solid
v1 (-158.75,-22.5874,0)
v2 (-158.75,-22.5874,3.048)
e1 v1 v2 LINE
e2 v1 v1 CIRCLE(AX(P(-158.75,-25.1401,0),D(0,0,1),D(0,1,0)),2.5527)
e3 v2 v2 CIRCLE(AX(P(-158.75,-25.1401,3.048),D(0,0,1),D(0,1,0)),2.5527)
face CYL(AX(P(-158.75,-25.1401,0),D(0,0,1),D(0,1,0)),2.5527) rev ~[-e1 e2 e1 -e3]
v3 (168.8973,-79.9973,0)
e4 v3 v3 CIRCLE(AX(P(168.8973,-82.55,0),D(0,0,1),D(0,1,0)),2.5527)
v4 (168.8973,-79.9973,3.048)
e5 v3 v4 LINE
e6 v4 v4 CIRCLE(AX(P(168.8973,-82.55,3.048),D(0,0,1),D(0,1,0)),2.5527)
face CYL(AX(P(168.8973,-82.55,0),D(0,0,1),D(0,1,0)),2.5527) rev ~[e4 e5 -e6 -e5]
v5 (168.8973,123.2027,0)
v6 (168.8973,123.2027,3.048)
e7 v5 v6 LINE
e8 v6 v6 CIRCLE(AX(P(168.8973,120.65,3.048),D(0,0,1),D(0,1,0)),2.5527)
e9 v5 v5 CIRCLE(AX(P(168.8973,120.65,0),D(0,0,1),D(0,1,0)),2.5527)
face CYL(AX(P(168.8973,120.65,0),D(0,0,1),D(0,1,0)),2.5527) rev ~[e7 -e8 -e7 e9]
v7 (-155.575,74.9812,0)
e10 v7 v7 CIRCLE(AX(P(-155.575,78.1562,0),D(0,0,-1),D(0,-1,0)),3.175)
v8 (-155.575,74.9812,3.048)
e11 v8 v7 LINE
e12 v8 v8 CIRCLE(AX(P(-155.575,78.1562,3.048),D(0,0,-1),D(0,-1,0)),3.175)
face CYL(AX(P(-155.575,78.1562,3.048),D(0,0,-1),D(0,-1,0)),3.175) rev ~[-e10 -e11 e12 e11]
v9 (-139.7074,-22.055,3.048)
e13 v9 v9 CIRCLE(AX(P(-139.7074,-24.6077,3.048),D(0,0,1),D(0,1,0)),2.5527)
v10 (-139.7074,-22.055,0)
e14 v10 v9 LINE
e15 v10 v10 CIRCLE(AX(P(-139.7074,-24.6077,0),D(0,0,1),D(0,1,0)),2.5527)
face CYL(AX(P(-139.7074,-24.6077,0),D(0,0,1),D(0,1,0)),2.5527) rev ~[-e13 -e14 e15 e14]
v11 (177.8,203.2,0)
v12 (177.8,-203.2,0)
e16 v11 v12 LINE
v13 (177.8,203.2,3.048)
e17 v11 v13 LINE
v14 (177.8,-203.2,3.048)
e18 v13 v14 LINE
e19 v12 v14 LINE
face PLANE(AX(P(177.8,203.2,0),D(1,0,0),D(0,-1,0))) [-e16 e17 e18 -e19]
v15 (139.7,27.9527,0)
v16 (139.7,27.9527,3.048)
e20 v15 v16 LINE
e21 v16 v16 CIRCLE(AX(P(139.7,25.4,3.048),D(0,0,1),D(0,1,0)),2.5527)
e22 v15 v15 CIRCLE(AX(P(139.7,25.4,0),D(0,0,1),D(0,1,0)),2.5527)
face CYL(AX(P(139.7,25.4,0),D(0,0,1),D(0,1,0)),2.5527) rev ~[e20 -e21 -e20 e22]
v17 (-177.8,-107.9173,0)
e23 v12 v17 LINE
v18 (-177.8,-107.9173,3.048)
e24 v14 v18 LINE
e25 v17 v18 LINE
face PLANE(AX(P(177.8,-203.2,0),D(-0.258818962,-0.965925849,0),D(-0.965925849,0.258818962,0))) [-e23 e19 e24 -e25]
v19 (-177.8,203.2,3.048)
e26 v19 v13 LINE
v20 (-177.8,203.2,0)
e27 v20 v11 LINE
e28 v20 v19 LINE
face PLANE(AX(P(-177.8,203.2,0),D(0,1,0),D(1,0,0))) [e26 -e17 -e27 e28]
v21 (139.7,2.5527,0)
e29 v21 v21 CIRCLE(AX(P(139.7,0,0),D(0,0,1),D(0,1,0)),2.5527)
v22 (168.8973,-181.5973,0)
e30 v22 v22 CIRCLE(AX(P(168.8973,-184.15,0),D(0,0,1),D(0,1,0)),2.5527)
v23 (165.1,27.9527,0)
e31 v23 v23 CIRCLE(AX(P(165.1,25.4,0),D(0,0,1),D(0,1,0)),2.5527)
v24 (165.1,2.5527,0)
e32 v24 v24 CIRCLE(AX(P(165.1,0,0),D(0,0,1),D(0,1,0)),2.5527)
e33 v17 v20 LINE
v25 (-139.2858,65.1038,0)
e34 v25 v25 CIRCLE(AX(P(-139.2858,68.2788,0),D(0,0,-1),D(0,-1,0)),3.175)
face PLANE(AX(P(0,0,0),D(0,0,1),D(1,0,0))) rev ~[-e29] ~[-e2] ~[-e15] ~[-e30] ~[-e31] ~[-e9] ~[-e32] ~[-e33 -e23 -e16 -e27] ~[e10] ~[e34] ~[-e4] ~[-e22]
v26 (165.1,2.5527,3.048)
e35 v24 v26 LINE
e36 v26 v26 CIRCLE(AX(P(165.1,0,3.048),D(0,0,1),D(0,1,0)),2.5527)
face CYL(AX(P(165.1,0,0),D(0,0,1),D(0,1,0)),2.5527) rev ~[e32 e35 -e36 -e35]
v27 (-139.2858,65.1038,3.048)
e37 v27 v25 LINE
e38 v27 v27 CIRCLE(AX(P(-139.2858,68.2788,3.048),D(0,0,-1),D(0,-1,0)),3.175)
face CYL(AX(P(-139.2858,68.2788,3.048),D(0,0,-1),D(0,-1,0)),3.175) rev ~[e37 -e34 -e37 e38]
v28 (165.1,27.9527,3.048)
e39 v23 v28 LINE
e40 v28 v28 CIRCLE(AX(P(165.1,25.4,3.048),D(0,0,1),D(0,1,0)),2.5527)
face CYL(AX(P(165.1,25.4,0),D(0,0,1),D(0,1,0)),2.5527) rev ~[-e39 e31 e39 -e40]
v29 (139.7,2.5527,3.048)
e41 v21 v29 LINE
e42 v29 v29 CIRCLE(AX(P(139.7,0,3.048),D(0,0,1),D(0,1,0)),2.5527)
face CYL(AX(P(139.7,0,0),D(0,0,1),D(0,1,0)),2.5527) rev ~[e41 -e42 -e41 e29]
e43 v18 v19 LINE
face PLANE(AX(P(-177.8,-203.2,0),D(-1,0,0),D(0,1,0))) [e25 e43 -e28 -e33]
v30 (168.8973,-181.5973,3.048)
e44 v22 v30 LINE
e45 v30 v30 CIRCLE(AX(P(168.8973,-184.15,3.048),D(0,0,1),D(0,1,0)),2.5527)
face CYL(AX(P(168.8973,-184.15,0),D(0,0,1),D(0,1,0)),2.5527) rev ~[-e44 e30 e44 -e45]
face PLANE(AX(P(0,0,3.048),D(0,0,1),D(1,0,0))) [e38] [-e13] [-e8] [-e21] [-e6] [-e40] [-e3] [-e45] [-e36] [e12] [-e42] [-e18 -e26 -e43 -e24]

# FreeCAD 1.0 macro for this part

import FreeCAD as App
import Part
import Sketcher
from FreeCAD import Vector
Q = App.Units.Quantity


def add_polygon(sketch, points):
    """Adds a closed chain of lines whose ends are joined by coincident constraints."""
    first, n = sketch.GeometryCount, len(points)
    for a, b in zip(points, points[1:] + points[:1]):
        sketch.addGeometry(Part.LineSegment(App.Vector(*a, 0), App.Vector(*b, 0)), False)
    for i in range(n):
        sketch.addConstraint(Sketcher.Constraint("Coincident", first + i, 2, first + (i + 1) % n, 1))

doc = App.newDocument("Part")
body = doc.addObject("PartDesign::Body", "Body")

# Sketch on XY plane
sketch1 = body.newObject("Sketcher::SketchObject", "Sketch")
sketch1.AttachmentSupport = (doc.getObject("XY_Plane"), [""])
sketch1.MapMode = "FlatFace"
add_polygon(sketch1, [(177.8, 203.2), (-177.8, 203.2), (-177.8, -203.2), (177.8, -203.2)])  # lines 0-3
sketch1.addConstraint(Sketcher.Constraint("Horizontal", 0))
sketch1.addConstraint(Sketcher.Constraint("Vertical", 1))
sketch1.addConstraint(Sketcher.Constraint("Horizontal", 2))
sketch1.addConstraint(Sketcher.Constraint("Vertical", 3))
sketch1.addConstraint(Sketcher.Constraint("Symmetric", 0, 2, 2, 2, -1, 1))
sketch1.addConstraint(Sketcher.Constraint("DistanceX", 0, 2, 0, 1, Q("14 in")))
sketch1.addConstraint(Sketcher.Constraint("DistanceY", 1, 2, 1, 1, Q("16 in")))
pad1 = body.newObject("PartDesign::Pad", "Pad")
pad1.Profile = sketch1
pad1.Length = Q("0.12 in")

# Sketch on XY plane
sketch2 = body.newObject("Sketcher::SketchObject", "Sketch001")
sketch2.AttachmentSupport = (doc.getObject("XY_Plane"), [""])
sketch2.MapMode = "FlatFace"
add_polygon(sketch2, [(-177.8, -107.9173), (177.8, -203.2), (-177.8, -203.2)])  # lines 0-2
sketch2.addConstraint(Sketcher.Constraint("Horizontal", 1))
sketch2.addConstraint(Sketcher.Constraint("Vertical", 2))
sketch2.addConstraint(Sketcher.Constraint("Angle", 0, Q("-15 deg")))
sketch2.addConstraint(Sketcher.Constraint("DistanceX", 1, 2, 1, 1, Q("14 in")))
sketch2.addConstraint(Sketcher.Constraint("DistanceX", -1, 1, 0, 2, Q("7 in")))
sketch2.addConstraint(Sketcher.Constraint("DistanceY", 0, 2, -1, 1, Q("8 in")))
pocket1 = body.newObject("PartDesign::Pocket", "Pocket")
pocket1.Profile = sketch2
pocket1.Length = Q("0.12 in")
pocket1.Reversed = True

# Sketch on XY plane
sketch3 = body.newObject("Sketcher::SketchObject", "Sketch002")
sketch3.AttachmentSupport = (doc.getObject("XY_Plane"), [""])
sketch3.MapMode = "FlatFace"
sketch3.addGeometry(Part.Circle(Vector(165.1, 0, 0), Vector(0, 0, 1), 2.5527), False)
sketch3.addGeometry(Part.Circle(Vector(139.7, 0, 0), Vector(0, 0, 1), 2.5527), False)
sketch3.addGeometry(Part.Circle(Vector(165.1, 25.4, 0), Vector(0, 0, 1), 2.5527), False)
sketch3.addGeometry(Part.Circle(Vector(139.7, 25.4, 0), Vector(0, 0, 1), 2.5527), False)
sketch3.addConstraint(Sketcher.Constraint("Equal", 0, 1))
sketch3.addConstraint(Sketcher.Constraint("Equal", 1, 2))
sketch3.addConstraint(Sketcher.Constraint("Equal", 2, 3))
sketch3.addConstraint(Sketcher.Constraint("PointOnObject", 0, 3, -1))
sketch3.addConstraint(Sketcher.Constraint("PointOnObject", 1, 3, -1))
sketch3.addConstraint(Sketcher.Constraint("Horizontal", 2, 3, 3, 3))
sketch3.addConstraint(Sketcher.Constraint("Vertical", 0, 3, 2, 3))
sketch3.addConstraint(Sketcher.Constraint("Vertical", 1, 3, 3, 3))
sketch3.addConstraint(Sketcher.Constraint("Diameter", 0, Q("0.201 in")))
sketch3.addConstraint(Sketcher.Constraint("DistanceY", -1, 1, 2, 3, Q("1 in")))
sketch3.addConstraint(Sketcher.Constraint("DistanceX", 1, 3, 0, 3, Q("1 in")))
sketch3.addConstraint(Sketcher.Constraint("DistanceX", -1, 1, 0, 3, Q("6.5 in")))
doc.recompute()
hole = body.newObject("PartDesign::Hole", "Hole")
hole.Profile = sketch3
hole.ThreadType = "None"
hole.Diameter = Q("0.201 in")
hole.DepthType = "ThroughAll"
hole.Reversed = True

# Sketch on XY plane
sketch4 = body.newObject("Sketcher::SketchObject", "Sketch003")
sketch4.AttachmentSupport = (doc.getObject("XY_Plane"), [""])
sketch4.MapMode = "FlatFace"
sketch4.addGeometry(Part.Circle(Vector(168.8973, -184.15, 0), Vector(0, 0, 1), 2.5527), False)
sketch4.addGeometry(Part.Circle(Vector(168.8973, -82.55, 0), Vector(0, 0, 1), 2.5527), False)
sketch4.addGeometry(Part.Circle(Vector(168.8973, 120.65, 0), Vector(0, 0, 1), 2.5527), False)
sketch4.addConstraint(Sketcher.Constraint("Equal", 0, 1))
sketch4.addConstraint(Sketcher.Constraint("Equal", 1, 2))
sketch4.addConstraint(Sketcher.Constraint("Vertical", 0, 3, 1, 3))
sketch4.addConstraint(Sketcher.Constraint("Vertical", 1, 3, 2, 3))
sketch4.addConstraint(Sketcher.Constraint("Diameter", 0, Q("0.201 in")))
sketch4.addConstraint(Sketcher.Constraint("DistanceY", 0, 3, 1, 3, Q("4 in")))
sketch4.addConstraint(Sketcher.Constraint("DistanceY", 1, 3, 2, 3, Q("8 in")))
sketch4.addConstraint(Sketcher.Constraint("DistanceY", 0, 3, -1, 1, Q("7.25 in")))
sketch4.addConstraint(Sketcher.Constraint("DistanceX", -1, 1, 0, 3, Q("6.6495 in")))
doc.recompute()
hole2 = body.newObject("PartDesign::Hole", "Hole001")
hole2.Profile = sketch4
hole2.ThreadType = "None"
hole2.Diameter = Q("0.201 in")
hole2.DepthType = "ThroughAll"
hole2.Reversed = True

# Sketch on XY plane
sketch5 = body.newObject("Sketcher::SketchObject", "Sketch004")
sketch5.AttachmentSupport = (doc.getObject("XY_Plane"), [""])
sketch5.MapMode = "FlatFace"
sketch5.addGeometry(Part.Circle(Vector(-158.75, -25.1401, 0), Vector(0, 0, 1), 2.5527), False)
sketch5.addGeometry(Part.Circle(Vector(-139.7074, -24.6077, 0), Vector(0, 0, 1), 2.5527), False)
sketch5.addConstraint(Sketcher.Constraint("Equal", 0, 1))
sketch5.addConstraint(Sketcher.Constraint("Diameter", 0, Q("0.201 in")))
sketch5.addConstraint(Sketcher.Constraint("DistanceX", 0, 3, -1, 1, Q("6.25 in")))
sketch5.addConstraint(Sketcher.Constraint("DistanceX", 1, 3, -1, 1, Q("5.5003 in")))
sketch5.addConstraint(Sketcher.Constraint("DistanceY", 1, 3, -1, 1, Q("0.9688 in")))
sketch5.addConstraint(Sketcher.Constraint("DistanceY", 0, 3, -1, 1, 25.14))
doc.recompute()
hole3 = body.newObject("PartDesign::Hole", "Hole002")
hole3.Profile = sketch5
hole3.ThreadType = "None"
hole3.Diameter = Q("0.201 in")
hole3.DepthType = "Dimension"
hole3.Depth = Q("0.12 in")
hole3.DrillPoint = "Angled"
hole3.DrillPointAngle = 118
hole3.Reversed = True

# Sketch on XY plane
sketch6 = body.newObject("Sketcher::SketchObject", "Sketch005")
sketch6.AttachmentSupport = (doc.getObject("XY_Plane"), [""])
sketch6.MapMode = "FlatFace"
sketch6.AttachmentOffset = App.Placement(Vector(0, 0, 0.12 * 25.4), App.Rotation())
sketch6.addGeometry(Part.Circle(Vector(-155.575, 78.1562, 0), Vector(0, 0, 1), 3.175), False)
sketch6.addGeometry(Part.Circle(Vector(-139.2858, 68.2788, 0), Vector(0, 0, 1), 3.175), False)
sketch6.addConstraint(Sketcher.Constraint("Equal", 0, 1))
sketch6.addConstraint(Sketcher.Constraint("Diameter", 0, Q("0.25 in")))
sketch6.addConstraint(Sketcher.Constraint("DistanceX", 0, 3, -1, 1, Q("6.125 in")))
sketch6.addConstraint(Sketcher.Constraint("DistanceX", 1, 3, -1, 1, Q("5.4837 in")))
sketch6.addConstraint(Sketcher.Constraint("DistanceY", -1, 1, 0, 3, 78.1562))
sketch6.addConstraint(Sketcher.Constraint("DistanceY", -1, 1, 1, 3, 68.2788))
doc.recompute()
hole4 = body.newObject("PartDesign::Hole", "Hole003")
hole4.Profile = sketch6
hole4.ThreadType = "None"
hole4.Diameter = Q("0.25 in")
hole4.DepthType = "Dimension"
hole4.Depth = Q("0.12 in")
hole4.DrillPoint = "Angled"
hole4.DrillPointAngle = 118

doc.recompute()
